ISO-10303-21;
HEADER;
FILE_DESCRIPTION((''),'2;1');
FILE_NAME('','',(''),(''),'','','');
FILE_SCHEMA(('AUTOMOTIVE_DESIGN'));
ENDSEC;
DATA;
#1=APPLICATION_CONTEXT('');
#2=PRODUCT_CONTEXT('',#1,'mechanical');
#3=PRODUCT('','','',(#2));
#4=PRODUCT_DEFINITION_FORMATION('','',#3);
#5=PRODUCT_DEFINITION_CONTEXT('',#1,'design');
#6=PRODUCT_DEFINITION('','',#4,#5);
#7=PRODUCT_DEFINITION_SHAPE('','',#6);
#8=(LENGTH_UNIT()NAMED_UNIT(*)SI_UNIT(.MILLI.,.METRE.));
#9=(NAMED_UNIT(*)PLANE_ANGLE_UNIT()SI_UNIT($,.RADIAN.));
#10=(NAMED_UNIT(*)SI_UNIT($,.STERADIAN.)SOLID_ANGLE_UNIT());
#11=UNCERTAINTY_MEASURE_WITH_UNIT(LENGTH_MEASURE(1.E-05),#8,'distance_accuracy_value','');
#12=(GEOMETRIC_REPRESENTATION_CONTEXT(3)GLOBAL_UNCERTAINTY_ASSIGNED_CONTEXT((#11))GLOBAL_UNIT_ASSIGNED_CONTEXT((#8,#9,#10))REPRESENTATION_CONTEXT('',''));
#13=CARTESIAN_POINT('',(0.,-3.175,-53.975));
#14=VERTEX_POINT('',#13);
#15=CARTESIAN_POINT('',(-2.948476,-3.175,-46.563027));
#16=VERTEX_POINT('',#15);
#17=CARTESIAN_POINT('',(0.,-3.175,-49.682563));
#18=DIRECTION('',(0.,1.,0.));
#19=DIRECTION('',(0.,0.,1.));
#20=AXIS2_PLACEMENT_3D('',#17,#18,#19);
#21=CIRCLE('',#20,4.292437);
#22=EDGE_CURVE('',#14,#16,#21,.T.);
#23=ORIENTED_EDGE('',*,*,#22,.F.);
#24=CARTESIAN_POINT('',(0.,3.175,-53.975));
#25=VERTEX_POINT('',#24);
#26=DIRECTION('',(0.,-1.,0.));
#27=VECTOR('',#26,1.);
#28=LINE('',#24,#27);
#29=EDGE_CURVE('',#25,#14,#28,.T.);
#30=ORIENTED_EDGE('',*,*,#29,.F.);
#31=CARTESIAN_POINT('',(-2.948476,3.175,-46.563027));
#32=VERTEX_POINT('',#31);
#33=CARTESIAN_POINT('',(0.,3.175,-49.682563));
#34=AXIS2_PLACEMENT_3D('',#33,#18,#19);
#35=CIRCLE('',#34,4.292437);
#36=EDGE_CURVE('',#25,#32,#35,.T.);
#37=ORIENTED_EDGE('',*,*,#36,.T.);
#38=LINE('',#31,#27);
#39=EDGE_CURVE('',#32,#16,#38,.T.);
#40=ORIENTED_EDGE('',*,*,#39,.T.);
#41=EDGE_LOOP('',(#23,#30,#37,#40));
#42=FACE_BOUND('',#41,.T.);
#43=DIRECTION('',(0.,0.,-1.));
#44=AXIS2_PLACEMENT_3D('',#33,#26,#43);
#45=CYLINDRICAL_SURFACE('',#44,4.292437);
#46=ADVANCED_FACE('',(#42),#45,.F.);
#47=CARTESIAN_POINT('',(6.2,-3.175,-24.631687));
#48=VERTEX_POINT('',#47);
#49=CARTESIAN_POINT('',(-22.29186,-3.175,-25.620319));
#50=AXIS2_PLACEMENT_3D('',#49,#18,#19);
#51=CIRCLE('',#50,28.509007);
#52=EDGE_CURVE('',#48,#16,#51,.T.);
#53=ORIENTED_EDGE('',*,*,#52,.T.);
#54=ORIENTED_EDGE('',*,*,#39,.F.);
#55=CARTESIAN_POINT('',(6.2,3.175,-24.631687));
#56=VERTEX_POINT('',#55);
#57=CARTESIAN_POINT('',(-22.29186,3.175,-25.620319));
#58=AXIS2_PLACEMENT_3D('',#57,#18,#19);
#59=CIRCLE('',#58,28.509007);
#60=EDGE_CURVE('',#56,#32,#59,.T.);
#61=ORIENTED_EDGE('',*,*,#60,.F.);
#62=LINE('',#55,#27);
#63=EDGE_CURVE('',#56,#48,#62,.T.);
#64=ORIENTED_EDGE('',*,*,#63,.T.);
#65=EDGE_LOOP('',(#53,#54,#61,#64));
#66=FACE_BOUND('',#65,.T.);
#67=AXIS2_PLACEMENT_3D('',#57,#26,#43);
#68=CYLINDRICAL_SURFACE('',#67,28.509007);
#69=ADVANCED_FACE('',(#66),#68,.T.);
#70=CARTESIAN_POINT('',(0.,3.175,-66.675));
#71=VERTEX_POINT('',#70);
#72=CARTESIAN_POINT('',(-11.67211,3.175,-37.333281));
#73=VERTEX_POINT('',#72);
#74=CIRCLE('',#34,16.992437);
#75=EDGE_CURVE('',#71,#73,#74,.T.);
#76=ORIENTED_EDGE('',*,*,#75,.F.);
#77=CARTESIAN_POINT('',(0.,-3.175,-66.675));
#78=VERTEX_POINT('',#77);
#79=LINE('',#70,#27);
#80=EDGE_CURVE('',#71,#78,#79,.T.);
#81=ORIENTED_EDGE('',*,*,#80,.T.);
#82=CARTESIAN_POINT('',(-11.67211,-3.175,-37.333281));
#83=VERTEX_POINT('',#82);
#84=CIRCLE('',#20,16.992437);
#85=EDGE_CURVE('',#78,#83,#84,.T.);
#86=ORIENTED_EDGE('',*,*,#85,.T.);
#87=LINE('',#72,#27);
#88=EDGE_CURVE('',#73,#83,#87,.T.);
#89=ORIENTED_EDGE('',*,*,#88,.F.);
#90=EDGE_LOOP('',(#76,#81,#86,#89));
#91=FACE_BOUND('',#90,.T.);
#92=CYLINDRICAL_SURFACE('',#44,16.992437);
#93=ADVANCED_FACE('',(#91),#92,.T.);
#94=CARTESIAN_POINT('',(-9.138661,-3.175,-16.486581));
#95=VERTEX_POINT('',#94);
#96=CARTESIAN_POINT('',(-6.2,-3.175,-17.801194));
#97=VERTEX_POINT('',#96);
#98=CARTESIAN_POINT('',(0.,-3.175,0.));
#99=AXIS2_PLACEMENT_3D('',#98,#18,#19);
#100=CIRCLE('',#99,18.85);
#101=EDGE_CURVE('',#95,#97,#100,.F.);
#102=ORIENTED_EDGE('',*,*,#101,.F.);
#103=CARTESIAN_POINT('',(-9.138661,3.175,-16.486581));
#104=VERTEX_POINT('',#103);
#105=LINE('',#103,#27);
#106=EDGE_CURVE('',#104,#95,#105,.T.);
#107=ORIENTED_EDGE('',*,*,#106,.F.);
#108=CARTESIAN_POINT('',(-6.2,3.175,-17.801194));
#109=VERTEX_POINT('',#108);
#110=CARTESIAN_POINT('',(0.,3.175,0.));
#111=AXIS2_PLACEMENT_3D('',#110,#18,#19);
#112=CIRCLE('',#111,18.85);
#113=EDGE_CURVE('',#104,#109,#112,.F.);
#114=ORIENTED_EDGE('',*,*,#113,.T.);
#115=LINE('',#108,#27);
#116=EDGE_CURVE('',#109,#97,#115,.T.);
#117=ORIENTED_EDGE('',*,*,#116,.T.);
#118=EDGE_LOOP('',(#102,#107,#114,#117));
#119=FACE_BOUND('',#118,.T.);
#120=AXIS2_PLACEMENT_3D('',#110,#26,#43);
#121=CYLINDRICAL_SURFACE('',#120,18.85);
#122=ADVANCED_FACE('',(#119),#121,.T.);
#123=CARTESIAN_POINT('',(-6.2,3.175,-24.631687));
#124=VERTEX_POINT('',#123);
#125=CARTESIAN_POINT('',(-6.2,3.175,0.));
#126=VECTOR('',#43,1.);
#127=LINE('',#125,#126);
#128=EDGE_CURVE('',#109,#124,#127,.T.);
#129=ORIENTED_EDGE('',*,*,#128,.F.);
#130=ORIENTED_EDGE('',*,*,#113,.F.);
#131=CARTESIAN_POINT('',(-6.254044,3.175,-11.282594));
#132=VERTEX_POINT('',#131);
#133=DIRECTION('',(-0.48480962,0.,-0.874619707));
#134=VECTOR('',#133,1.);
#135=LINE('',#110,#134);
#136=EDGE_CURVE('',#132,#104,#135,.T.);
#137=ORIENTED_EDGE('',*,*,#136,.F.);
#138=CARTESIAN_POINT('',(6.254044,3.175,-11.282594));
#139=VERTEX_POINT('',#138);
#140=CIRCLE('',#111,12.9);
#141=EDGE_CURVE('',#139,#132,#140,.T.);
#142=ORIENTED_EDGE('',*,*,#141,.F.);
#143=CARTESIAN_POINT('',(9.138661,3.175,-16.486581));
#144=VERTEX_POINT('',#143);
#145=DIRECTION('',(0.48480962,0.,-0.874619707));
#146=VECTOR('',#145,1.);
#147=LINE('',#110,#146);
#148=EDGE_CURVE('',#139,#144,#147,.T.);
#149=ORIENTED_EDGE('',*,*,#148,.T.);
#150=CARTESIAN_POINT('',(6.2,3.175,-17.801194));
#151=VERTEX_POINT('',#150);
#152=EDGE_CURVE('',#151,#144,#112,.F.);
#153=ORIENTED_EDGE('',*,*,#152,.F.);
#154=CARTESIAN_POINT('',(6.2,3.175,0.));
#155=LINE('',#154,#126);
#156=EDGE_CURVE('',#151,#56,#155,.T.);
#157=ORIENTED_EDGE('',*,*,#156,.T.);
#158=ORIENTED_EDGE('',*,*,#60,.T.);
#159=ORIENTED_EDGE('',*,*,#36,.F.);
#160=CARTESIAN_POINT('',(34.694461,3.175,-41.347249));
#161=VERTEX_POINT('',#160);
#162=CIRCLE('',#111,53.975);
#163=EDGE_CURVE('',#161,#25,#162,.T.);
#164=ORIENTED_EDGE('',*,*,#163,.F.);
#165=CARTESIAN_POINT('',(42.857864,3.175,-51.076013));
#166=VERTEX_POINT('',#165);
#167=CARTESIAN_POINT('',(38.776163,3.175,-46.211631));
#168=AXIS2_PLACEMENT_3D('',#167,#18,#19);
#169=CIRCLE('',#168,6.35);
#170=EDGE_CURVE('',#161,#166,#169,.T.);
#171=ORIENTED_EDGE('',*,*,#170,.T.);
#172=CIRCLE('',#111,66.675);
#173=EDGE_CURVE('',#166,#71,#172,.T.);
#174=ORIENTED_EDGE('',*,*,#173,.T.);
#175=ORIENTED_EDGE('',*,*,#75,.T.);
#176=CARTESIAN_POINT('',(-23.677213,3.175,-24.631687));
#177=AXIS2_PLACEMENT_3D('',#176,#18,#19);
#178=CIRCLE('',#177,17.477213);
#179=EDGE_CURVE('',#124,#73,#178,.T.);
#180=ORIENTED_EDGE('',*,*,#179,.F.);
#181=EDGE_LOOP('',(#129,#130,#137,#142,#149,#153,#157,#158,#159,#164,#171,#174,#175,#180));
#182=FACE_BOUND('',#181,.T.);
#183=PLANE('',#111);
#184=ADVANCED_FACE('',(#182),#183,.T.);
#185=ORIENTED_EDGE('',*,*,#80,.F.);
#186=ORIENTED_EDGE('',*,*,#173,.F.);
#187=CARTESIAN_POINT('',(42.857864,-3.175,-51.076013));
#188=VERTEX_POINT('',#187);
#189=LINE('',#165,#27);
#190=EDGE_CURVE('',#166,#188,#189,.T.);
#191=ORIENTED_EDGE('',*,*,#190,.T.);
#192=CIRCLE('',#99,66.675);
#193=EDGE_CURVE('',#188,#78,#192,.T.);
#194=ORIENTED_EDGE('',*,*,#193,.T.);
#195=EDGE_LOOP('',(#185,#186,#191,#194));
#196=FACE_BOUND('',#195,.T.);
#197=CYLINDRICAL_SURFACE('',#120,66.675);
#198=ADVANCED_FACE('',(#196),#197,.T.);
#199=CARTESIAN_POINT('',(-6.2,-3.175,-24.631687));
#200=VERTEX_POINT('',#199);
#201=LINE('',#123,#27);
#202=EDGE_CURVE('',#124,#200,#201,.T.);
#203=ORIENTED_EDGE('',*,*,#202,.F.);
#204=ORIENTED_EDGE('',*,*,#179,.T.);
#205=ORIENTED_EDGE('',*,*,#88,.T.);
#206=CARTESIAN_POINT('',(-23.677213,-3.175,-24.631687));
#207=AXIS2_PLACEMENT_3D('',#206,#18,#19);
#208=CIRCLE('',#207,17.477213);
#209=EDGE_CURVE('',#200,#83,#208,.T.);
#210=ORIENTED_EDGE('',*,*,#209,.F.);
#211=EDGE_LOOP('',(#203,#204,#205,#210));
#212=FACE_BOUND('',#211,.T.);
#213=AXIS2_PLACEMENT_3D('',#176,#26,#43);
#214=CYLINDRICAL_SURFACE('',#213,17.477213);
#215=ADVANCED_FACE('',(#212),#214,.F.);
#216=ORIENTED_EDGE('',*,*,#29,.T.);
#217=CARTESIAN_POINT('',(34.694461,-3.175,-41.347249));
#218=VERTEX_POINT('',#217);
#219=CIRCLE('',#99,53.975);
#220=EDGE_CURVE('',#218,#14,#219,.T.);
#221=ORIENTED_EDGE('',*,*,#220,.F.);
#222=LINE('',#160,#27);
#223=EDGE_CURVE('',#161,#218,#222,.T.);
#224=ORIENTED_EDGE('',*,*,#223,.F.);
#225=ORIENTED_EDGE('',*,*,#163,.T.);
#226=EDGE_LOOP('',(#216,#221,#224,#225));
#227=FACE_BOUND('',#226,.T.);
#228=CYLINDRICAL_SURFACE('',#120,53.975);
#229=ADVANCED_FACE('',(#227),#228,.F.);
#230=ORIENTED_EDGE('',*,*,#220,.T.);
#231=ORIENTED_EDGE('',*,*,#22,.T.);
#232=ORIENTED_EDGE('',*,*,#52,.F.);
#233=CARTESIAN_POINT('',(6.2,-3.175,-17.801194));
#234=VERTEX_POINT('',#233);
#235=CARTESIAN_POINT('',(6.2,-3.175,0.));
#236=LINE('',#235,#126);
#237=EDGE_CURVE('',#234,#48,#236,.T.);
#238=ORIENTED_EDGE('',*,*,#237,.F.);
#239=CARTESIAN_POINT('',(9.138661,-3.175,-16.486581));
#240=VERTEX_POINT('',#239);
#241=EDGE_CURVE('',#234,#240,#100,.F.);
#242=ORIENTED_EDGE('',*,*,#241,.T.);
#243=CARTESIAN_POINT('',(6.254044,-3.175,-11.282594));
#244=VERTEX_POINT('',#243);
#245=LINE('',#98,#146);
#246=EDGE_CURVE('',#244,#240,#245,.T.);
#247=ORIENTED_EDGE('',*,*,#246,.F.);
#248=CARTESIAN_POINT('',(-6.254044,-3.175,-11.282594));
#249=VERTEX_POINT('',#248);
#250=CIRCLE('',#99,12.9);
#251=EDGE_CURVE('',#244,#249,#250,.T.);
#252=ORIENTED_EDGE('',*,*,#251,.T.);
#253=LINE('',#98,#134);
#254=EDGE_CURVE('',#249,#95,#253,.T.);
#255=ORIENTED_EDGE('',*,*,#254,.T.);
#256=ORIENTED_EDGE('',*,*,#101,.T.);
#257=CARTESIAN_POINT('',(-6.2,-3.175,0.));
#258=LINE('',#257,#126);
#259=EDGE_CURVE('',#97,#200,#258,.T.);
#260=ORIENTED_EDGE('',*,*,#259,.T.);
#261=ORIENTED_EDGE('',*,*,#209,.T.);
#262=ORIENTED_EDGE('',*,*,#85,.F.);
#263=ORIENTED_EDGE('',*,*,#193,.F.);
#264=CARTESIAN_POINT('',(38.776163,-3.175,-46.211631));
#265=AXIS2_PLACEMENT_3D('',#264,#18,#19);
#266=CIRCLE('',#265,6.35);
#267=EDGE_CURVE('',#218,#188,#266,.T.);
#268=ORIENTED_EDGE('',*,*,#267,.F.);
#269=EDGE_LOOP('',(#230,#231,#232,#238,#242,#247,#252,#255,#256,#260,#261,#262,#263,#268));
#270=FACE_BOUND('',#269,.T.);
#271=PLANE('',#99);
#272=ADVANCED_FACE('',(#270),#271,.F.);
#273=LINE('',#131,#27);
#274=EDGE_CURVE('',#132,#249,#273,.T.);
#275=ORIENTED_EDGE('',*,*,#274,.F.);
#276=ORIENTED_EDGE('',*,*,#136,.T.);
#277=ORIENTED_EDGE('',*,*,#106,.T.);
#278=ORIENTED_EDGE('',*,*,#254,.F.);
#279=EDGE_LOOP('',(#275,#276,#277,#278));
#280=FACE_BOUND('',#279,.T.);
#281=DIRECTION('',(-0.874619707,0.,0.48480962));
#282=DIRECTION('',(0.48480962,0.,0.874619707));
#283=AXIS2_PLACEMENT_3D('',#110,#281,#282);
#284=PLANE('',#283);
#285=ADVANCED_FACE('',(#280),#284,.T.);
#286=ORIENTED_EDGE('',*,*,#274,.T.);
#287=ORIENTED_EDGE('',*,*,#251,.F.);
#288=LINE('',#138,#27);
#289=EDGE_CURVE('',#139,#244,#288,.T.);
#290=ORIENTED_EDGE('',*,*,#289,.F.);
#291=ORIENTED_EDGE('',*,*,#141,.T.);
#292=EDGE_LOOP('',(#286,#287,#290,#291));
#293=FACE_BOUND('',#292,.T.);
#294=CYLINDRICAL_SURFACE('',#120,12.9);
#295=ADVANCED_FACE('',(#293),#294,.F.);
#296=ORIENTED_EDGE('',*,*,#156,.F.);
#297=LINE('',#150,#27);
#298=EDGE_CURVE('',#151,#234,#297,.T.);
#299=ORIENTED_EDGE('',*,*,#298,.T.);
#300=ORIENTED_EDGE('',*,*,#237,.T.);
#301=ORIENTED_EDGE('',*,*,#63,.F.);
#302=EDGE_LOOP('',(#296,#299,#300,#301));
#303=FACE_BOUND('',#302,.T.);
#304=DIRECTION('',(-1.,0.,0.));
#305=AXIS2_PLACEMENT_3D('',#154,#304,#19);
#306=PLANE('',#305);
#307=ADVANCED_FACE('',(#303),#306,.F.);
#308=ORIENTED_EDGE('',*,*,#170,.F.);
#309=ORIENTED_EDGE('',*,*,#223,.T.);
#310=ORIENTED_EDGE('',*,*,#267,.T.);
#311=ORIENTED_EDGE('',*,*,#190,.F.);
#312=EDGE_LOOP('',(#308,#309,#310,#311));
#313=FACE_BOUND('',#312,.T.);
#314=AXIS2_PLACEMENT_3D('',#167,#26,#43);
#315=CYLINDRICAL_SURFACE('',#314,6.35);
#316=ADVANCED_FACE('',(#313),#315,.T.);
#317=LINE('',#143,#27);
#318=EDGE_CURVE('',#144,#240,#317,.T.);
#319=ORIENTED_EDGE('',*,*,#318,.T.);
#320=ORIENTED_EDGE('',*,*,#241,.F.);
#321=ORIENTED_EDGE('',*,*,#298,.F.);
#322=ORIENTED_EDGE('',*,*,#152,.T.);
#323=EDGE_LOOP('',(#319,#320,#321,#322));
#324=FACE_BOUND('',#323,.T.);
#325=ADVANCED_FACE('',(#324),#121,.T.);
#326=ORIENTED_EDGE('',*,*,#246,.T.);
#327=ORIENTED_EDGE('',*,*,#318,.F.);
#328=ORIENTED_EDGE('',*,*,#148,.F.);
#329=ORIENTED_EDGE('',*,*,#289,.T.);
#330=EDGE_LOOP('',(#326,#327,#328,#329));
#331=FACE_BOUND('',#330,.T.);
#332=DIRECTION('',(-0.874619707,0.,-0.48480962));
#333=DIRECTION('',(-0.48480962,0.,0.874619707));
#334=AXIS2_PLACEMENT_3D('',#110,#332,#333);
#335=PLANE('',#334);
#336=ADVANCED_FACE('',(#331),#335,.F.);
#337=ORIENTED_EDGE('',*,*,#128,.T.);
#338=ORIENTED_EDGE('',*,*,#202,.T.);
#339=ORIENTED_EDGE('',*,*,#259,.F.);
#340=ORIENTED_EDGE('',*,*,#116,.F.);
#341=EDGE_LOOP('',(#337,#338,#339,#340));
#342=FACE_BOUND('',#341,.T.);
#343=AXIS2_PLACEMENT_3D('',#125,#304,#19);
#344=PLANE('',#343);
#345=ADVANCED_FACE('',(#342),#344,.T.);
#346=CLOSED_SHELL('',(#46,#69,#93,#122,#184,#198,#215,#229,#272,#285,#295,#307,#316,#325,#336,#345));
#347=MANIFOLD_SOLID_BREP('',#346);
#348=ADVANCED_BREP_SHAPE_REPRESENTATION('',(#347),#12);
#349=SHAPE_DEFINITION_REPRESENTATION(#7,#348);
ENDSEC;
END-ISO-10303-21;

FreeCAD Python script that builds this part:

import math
import FreeCAD as App
import Part
import Sketcher
from FreeCAD import Vector
Q = App.Units.Quantity

doc = App.newDocument("Part")
body = doc.addObject("PartDesign::Body", "Body")

# Sketch on XZ plane
sketch1 = body.newObject("Sketcher::SketchObject", "Sketch")
sketch1.AttachmentSupport = (doc.getObject("XZ_Plane"), [""])
sketch1.MapMode = "FlatFace"
sketch1.addGeometry([
    Part.LineSegment(Vector(-9.138661, -16.486581, 0), Vector(-6.254044, -11.282594, 0)),  # 0
    Part.ArcOfCircle(Part.Circle(Vector(0, 0, 0), Vector(0, 0, 1), 12.9), math.radians(-119), math.radians(-61)),  # 1
    Part.LineSegment(Vector(6.254044, -11.282594, 0), Vector(9.138661, -16.486581, 0)),  # 2
    Part.ArcOfCircle(Part.Circle(Vector(0, 0, 0), Vector(0, 0, 1), 18.85), math.radians(-70.79722), math.radians(-61)),  # 3
    Part.LineSegment(Vector(6.2, -17.801194, 0), Vector(6.2, -24.631687, 0)),  # 4
    Part.ArcOfCircle(Part.Circle(Vector(-22.29186, -25.620319, 0), Vector(0, 0, 1), 28.509007), math.radians(-47.2734), math.radians(1.987296)),  # 5
    Part.ArcOfCircle(Part.Circle(Vector(0, -49.682563, 0), Vector(0, 0, 1), 4.292437), math.radians(133.385239), math.radians(270)),  # 6
    Part.ArcOfCircle(Part.Circle(Vector(0, 0, 0), Vector(0, 0, 1), 53.975), math.radians(-90), math.radians(-50)),  # 7
    Part.ArcOfCircle(Part.Circle(Vector(38.776163, -46.211631, 0), Vector(0, 0, 1), 6.35), math.radians(-50), math.radians(130)),  # 8
    Part.ArcOfCircle(Part.Circle(Vector(0, 0, 0), Vector(0, 0, 1), 66.675), math.radians(-90), math.radians(-50)),  # 9
    Part.ArcOfCircle(Part.Circle(Vector(0, -49.682563, 0), Vector(0, 0, 1), 16.992437), math.radians(133.385239), math.radians(270)),  # 10
    Part.ArcOfCircle(Part.Circle(Vector(-23.677213, -24.631687, 0), Vector(0, 0, 1), 17.477213), math.radians(-46.614761), math.radians(0)),  # 11
    Part.LineSegment(Vector(-6.2, -24.631687, 0), Vector(-6.2, -17.801194, 0)),  # 12
    Part.ArcOfCircle(Part.Circle(Vector(0, 0, 0), Vector(0, 0, 1), 18.85), math.radians(-119), math.radians(-109.20278)),  # 13
], False)
sketch1.addConstraint([
    Sketcher.Constraint("Coincident", 0, 2, 1, 1),
    Sketcher.Constraint("Coincident", 1, 2, 2, 1),
    Sketcher.Constraint("Coincident", 2, 2, 3, 2),
    Sketcher.Constraint("Coincident", 3, 1, 4, 1),
    Sketcher.Constraint("Coincident", 4, 2, 5, 2),
    Sketcher.Constraint("Coincident", 5, 1, 6, 1),
    Sketcher.Constraint("Tangent", 6, 2, 7, 1),
    Sketcher.Constraint("Tangent", 7, 2, 8, 2),
    Sketcher.Constraint("Tangent", 8, 1, 9, 2),
    Sketcher.Constraint("Tangent", 9, 1, 10, 2),
    Sketcher.Constraint("Tangent", 10, 1, 11, 1),
    Sketcher.Constraint("Tangent", 11, 2, 12, 1),
    Sketcher.Constraint("Coincident", 12, 2, 13, 2),
    Sketcher.Constraint("Coincident", 13, 1, 0, 1),
    Sketcher.Constraint("Vertical", 4),
    Sketcher.Constraint("Vertical", 12),
    Sketcher.Constraint("Coincident", 1, 3, -1, 1),
    Sketcher.Constraint("Coincident", 3, 3, -1, 1),
    Sketcher.Constraint("Coincident", 7, 3, -1, 1),
    Sketcher.Constraint("Coincident", 9, 3, -1, 1),
    Sketcher.Constraint("Coincident", 13, 3, -1, 1),
    Sketcher.Constraint("Coincident", 10, 3, 6, 3),
    Sketcher.Constraint("Equal", 3, 13),
    Sketcher.Constraint("Symmetric", 4, 2, 11, 2, -2),
    Sketcher.Constraint("PointOnObject", 6, 3, -2),
    Sketcher.Constraint("Horizontal", 0, 2, 1, 2),
    Sketcher.Constraint("Horizontal", 2, 2, 13, 1),
    Sketcher.Constraint("Radius", 8, Q("0.25 in")),
    Sketcher.Constraint("Angle", 0, Q("61 deg")),
    Sketcher.Constraint("Radius", 7, Q("2.125 in")),
    Sketcher.Constraint("Radius", 1, 12.9),
    Sketcher.Constraint("Radius", 3, 18.85),
    Sketcher.Constraint("Radius", 5, 28.509007),
    Sketcher.Constraint("Radius", 6, 4.292437),
    Sketcher.Constraint("Radius", 11, 17.477213),
    Sketcher.Constraint("DistanceX", -1, 1, 3, 1, 6.2),
    Sketcher.Constraint("DistanceY", 3, 1, 1, 2, 6.5186),
    Sketcher.Constraint("DistanceX", 2, 2, 7, 2, 25.5558),
    Sketcher.Constraint("DistanceX", 5, 3, -1, 1, 22.29186),
])
pad1 = body.newObject("PartDesign::Pad", "Pad")
pad1.Profile = sketch1
pad1.Length = Q("0.25 in")
pad1.Midplane = True

doc.recompute()
